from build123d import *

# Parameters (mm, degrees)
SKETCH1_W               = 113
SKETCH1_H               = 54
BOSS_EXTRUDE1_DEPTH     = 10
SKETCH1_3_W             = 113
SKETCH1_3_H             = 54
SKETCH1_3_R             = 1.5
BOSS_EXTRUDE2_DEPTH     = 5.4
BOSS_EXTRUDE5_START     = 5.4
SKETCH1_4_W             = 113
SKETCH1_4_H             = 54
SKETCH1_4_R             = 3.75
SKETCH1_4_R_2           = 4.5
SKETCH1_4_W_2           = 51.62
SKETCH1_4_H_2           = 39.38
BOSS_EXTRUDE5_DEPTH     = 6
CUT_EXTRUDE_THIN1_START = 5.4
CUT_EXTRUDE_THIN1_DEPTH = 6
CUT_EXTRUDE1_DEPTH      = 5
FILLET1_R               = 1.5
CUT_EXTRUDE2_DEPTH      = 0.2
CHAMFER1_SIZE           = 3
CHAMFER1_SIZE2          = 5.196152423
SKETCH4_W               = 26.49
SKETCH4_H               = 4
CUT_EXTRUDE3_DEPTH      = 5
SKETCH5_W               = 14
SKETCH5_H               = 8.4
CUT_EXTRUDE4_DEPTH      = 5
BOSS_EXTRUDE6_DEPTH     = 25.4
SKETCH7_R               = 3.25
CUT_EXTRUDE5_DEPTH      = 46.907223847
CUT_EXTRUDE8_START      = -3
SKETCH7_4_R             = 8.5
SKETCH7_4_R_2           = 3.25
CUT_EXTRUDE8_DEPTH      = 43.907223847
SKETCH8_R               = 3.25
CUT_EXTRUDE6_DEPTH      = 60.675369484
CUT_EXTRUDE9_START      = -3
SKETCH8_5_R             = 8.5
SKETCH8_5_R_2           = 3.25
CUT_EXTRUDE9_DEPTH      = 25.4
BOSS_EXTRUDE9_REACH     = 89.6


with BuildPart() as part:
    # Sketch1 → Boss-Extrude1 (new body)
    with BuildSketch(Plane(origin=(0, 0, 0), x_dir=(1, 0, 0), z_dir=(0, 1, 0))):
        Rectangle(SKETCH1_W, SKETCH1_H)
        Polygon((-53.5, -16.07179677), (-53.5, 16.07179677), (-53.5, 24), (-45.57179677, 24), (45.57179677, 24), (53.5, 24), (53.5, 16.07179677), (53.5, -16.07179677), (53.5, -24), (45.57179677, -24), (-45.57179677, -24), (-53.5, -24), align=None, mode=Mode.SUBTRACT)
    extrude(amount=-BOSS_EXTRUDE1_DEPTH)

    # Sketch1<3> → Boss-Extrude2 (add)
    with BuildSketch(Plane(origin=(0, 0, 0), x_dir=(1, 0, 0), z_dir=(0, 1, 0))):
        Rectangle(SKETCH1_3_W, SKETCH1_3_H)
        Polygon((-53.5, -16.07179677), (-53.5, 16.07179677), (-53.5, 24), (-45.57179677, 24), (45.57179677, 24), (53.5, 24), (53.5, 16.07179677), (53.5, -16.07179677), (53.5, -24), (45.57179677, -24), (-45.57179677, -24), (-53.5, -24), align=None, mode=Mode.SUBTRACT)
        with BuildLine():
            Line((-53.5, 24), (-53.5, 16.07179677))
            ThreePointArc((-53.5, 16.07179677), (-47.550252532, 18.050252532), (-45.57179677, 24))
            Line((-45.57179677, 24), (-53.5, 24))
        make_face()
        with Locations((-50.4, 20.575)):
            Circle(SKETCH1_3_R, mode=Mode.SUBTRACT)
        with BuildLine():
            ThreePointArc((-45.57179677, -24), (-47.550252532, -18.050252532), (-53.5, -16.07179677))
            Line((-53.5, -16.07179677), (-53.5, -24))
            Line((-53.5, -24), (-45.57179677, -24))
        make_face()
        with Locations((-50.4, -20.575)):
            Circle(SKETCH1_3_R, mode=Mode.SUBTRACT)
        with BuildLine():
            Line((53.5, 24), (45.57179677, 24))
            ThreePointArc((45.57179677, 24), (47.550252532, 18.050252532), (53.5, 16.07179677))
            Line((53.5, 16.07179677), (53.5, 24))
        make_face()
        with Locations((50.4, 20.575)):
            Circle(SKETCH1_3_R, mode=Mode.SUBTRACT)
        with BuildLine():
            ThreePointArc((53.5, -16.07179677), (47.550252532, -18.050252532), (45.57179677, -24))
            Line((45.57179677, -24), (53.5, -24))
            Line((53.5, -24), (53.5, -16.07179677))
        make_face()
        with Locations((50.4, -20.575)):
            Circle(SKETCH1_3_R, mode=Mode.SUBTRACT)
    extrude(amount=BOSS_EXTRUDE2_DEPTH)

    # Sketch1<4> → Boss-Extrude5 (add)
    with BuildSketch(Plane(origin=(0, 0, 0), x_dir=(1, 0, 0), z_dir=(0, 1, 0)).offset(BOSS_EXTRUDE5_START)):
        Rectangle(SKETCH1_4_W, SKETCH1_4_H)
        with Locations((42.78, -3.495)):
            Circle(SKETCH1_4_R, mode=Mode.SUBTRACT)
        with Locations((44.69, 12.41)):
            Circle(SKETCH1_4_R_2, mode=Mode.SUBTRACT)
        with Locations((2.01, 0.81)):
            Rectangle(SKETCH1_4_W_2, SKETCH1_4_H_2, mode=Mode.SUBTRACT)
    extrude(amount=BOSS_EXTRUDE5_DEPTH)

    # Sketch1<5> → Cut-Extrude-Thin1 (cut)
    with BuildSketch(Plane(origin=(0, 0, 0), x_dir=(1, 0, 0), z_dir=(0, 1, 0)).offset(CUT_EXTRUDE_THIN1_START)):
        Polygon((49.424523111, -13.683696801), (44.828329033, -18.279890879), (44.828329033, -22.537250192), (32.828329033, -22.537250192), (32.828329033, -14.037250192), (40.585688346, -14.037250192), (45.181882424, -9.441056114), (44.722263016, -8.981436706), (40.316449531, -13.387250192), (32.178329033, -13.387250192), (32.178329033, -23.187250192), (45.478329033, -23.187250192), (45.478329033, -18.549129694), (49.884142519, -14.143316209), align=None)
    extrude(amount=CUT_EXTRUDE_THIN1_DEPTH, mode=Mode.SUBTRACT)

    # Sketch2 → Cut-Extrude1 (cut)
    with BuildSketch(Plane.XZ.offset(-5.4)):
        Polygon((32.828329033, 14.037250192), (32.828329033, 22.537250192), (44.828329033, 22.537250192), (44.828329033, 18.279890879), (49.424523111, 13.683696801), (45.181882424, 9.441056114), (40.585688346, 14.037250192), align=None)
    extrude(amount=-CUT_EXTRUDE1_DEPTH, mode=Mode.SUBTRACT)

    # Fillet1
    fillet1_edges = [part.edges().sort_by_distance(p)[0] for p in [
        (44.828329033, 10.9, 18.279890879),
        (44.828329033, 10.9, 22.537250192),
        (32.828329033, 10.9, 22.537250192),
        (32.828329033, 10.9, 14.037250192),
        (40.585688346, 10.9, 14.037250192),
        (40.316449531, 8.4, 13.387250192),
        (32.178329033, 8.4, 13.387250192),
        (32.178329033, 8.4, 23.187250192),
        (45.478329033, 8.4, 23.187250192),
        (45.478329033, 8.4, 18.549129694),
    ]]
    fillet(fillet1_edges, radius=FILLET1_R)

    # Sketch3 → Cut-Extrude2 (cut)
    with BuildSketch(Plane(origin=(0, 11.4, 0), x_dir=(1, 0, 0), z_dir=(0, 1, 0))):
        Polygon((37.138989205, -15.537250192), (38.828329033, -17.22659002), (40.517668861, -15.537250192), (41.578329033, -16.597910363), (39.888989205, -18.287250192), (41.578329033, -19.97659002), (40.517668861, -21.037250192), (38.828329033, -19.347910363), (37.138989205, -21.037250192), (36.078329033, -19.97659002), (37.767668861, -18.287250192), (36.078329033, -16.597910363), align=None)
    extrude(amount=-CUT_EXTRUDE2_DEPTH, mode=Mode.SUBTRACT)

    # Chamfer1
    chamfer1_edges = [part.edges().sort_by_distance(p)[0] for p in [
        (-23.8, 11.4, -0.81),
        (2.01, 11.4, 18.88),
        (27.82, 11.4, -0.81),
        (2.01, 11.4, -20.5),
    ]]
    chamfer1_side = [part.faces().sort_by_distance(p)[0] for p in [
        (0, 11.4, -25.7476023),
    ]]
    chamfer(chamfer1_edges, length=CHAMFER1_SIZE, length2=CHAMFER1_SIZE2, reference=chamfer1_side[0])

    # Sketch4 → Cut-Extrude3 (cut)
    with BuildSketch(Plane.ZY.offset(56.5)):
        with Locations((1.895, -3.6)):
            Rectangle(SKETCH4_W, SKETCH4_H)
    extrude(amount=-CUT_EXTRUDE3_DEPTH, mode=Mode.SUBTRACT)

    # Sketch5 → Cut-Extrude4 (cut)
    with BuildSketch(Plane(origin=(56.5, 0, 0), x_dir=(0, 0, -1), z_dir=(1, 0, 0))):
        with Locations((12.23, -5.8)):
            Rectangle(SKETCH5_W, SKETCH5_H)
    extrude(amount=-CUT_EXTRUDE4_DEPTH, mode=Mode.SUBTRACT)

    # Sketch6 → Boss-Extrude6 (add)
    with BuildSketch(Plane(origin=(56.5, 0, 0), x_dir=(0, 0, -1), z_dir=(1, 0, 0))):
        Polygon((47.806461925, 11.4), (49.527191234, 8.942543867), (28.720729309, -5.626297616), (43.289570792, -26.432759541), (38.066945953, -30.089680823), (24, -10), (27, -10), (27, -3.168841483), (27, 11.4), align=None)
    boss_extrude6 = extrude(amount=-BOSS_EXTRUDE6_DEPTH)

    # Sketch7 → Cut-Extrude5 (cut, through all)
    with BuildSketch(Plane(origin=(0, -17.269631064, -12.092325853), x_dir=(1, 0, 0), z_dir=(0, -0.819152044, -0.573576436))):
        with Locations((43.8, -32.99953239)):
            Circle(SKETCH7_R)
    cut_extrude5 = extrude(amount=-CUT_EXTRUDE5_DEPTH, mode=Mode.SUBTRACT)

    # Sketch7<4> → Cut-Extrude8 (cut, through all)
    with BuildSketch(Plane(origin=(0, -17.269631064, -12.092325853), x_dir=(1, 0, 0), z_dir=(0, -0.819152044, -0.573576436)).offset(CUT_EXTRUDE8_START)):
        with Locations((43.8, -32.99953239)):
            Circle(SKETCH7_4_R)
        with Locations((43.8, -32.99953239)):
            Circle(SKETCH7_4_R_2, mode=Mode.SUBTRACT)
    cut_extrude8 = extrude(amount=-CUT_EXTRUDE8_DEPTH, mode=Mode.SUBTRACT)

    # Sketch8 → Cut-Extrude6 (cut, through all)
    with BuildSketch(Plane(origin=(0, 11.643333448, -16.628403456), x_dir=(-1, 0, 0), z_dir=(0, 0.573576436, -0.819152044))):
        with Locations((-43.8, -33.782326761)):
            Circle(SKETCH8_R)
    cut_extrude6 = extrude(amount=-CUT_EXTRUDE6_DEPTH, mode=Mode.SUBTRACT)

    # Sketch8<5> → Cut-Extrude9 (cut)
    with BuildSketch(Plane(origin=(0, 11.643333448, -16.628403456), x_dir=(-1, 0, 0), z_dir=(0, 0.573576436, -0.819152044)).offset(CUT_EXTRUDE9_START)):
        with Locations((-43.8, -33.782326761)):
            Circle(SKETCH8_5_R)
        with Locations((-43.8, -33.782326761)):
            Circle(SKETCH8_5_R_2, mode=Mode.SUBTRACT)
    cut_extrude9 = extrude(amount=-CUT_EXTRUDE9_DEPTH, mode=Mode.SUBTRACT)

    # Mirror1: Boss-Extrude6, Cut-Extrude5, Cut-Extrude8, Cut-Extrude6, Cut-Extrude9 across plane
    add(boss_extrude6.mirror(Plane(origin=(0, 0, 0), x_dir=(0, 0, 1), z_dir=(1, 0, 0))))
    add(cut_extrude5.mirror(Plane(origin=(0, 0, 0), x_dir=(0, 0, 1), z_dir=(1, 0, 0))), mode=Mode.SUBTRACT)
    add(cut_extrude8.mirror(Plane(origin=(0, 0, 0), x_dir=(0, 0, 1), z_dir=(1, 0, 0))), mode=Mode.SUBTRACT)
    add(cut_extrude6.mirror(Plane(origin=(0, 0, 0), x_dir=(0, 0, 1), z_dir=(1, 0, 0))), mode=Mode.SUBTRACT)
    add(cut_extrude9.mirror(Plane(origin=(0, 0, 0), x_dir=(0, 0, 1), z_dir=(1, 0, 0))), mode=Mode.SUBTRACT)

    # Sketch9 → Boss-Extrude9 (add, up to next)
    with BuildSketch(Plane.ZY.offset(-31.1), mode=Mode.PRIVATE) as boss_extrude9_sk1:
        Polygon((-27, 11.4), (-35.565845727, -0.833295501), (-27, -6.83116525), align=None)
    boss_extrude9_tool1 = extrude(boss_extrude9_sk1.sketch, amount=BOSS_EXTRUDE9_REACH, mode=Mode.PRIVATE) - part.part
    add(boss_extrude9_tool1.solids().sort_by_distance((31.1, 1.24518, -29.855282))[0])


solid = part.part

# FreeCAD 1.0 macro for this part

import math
import FreeCAD as App
import Part
import Sketcher
Q = App.Units.Quantity


def edges_at(feature, points):
    """Names of the edges that pass closest to the given points."""
    edges = feature.Shape.Edges
    near = lambda p: min(range(len(edges)), key=lambda i: edges[i].distToShape(Part.Vertex(*p))[0])
    return sorted({f"Edge{near(p) + 1}" for p in points})

doc = App.newDocument("Part")
body = doc.addObject("PartDesign::Body", "Body")

sketch1 = body.newObject("Sketcher::SketchObject", "Sketch")
sketch1.AttachmentSupport = (doc.getObject("XZ_Plane"), [""])
sketch1.MapMode = "FlatFace"
sketch1.addGeometry(Part.LineSegment(App.Vector(-56, -27, 0), App.Vector(-56, 27, 0)), False)
sketch1.addGeometry(Part.LineSegment(App.Vector(-56, 27, 0), App.Vector(56, 27, 0)), False)
sketch1.addGeometry(Part.LineSegment(App.Vector(56, 27, 0), App.Vector(56, -27, 0)), False)
sketch1.addGeometry(Part.LineSegment(App.Vector(56, -27, 0), App.Vector(-56, -27, 0)), False)
sketch1.addGeometry(Part.LineSegment(App.Vector(-54, 24, 0), App.Vector(-54, -24, 0)), False)
sketch1.addGeometry(Part.LineSegment(App.Vector(-54, -24, 0), App.Vector(54, -24, 0)), False)
sketch1.addGeometry(Part.LineSegment(App.Vector(54, -24, 0), App.Vector(54, 24, 0)), False)
sketch1.addGeometry(Part.LineSegment(App.Vector(54, 24, 0), App.Vector(-54, 24, 0)), False)
sketch1.addConstraint(Sketcher.Constraint("Coincident", 0, 2, 1, 1))
sketch1.addConstraint(Sketcher.Constraint("Coincident", 1, 2, 2, 1))
sketch1.addConstraint(Sketcher.Constraint("Coincident", 2, 2, 3, 1))
sketch1.addConstraint(Sketcher.Constraint("Coincident", 3, 2, 0, 1))
sketch1.addConstraint(Sketcher.Constraint("Coincident", 4, 2, 5, 1))
sketch1.addConstraint(Sketcher.Constraint("Coincident", 5, 2, 6, 1))
sketch1.addConstraint(Sketcher.Constraint("Coincident", 6, 2, 7, 1))
sketch1.addConstraint(Sketcher.Constraint("Coincident", 7, 2, 4, 1))
sketch1.addConstraint(Sketcher.Constraint("Vertical", 0))
sketch1.addConstraint(Sketcher.Constraint("Horizontal", 1))
sketch1.addConstraint(Sketcher.Constraint("Vertical", 2))
sketch1.addConstraint(Sketcher.Constraint("Horizontal", 3))
sketch1.addConstraint(Sketcher.Constraint("Vertical", 4))
sketch1.addConstraint(Sketcher.Constraint("Horizontal", 5))
sketch1.addConstraint(Sketcher.Constraint("Vertical", 6))
sketch1.addConstraint(Sketcher.Constraint("Horizontal", 7))
sketch1.addConstraint(Sketcher.Constraint("Symmetric", 0, 2, 2, 2, -1, 1))
sketch1.addConstraint(Sketcher.Constraint("Symmetric", 4, 2, 6, 2, -1, 1))
sketch1.addConstraint(Sketcher.Constraint("DistanceX", 1, 1, 1, 2, 113.0))
sketch1.addConstraint(Sketcher.Constraint("DistanceX", 5, 1, 5, 2, 107.0))
sketch1.addConstraint(Sketcher.Constraint("DistanceY", 0, 1, 0, 2, 54.0))
sketch1.addConstraint(Sketcher.Constraint("DistanceY", 4, 2, 4, 1, 48.0))
pad1 = body.newObject("PartDesign::Pad", "Pad")
pad1.Profile = sketch1
pad1.Length = 10

sketch2 = body.newObject("Sketcher::SketchObject", "Sketch001")
sketch2.AttachmentSupport = (doc.getObject("XZ_Plane"), [""])
sketch2.MapMode = "FlatFace"
sketch2.addGeometry(Part.LineSegment(App.Vector(-56.5, -27, 0), App.Vector(-56.5, 27, 0)), False)
sketch2.addGeometry(Part.LineSegment(App.Vector(-56.5, 27, 0), App.Vector(56.5, 27, 0)), False)
sketch2.addGeometry(Part.LineSegment(App.Vector(56.5, 27, 0), App.Vector(56.5, -27, 0)), False)
sketch2.addGeometry(Part.LineSegment(App.Vector(56.5, -27, 0), App.Vector(-56.5, -27, 0)), False)
sketch2.addGeometry(Part.Circle(App.Vector(-50.4, 20.6, 0), App.Vector(0, 0, 1), 1.5), False)
sketch2.addGeometry(Part.Circle(App.Vector(50.4, 20.6, 0), App.Vector(0, 0, 1), 1.5), False)
sketch2.addGeometry(Part.LineSegment(App.Vector(-53.5, 16.1, 0), App.Vector(-53.5, -16.1, 0)), False)
sketch2.addGeometry(Part.ArcOfCircle(Part.Circle(App.Vector(-52.5, -23, 0), App.Vector(0, 0, 1), 7), math.radians(-8), math.radians(98)), False)
sketch2.addGeometry(Part.LineSegment(App.Vector(-45.6, -24, 0), App.Vector(45.6, -24, 0)), False)
sketch2.addGeometry(Part.ArcOfCircle(Part.Circle(App.Vector(52.5, -23, 0), App.Vector(0, 0, 1), 7), math.radians(82), math.radians(188)), False)
sketch2.addGeometry(Part.LineSegment(App.Vector(53.5, -16.1, 0), App.Vector(53.5, 16.1, 0)), False)
sketch2.addGeometry(Part.ArcOfCircle(Part.Circle(App.Vector(52.5, 23, 0), App.Vector(0, 0, 1), 7), math.radians(172), math.radians(278)), False)
sketch2.addGeometry(Part.LineSegment(App.Vector(45.6, 24, 0), App.Vector(-45.6, 24, 0)), False)
sketch2.addGeometry(Part.ArcOfCircle(Part.Circle(App.Vector(-52.5, 23, 0), App.Vector(0, 0, 1), 7), math.radians(-98), math.radians(8)), False)
sketch2.addGeometry(Part.Circle(App.Vector(-50.4, -20.6, 0), App.Vector(0, 0, 1), 1.5), False)
sketch2.addGeometry(Part.Circle(App.Vector(50.4, -20.6, 0), App.Vector(0, 0, 1), 1.5), False)
sketch2.addConstraint(Sketcher.Constraint("Coincident", 0, 2, 1, 1))
sketch2.addConstraint(Sketcher.Constraint("Coincident", 1, 2, 2, 1))
sketch2.addConstraint(Sketcher.Constraint("Coincident", 2, 2, 3, 1))
sketch2.addConstraint(Sketcher.Constraint("Coincident", 3, 2, 0, 1))
sketch2.addConstraint(Sketcher.Constraint("Coincident", 6, 2, 7, 2))
sketch2.addConstraint(Sketcher.Constraint("Coincident", 7, 1, 8, 1))
sketch2.addConstraint(Sketcher.Constraint("Coincident", 8, 2, 9, 2))
sketch2.addConstraint(Sketcher.Constraint("Coincident", 9, 1, 10, 1))
sketch2.addConstraint(Sketcher.Constraint("Coincident", 10, 2, 11, 2))
sketch2.addConstraint(Sketcher.Constraint("Coincident", 11, 1, 12, 1))
sketch2.addConstraint(Sketcher.Constraint("Coincident", 12, 2, 13, 2))
sketch2.addConstraint(Sketcher.Constraint("Coincident", 13, 1, 6, 1))
sketch2.addConstraint(Sketcher.Constraint("Vertical", 0))
sketch2.addConstraint(Sketcher.Constraint("Horizontal", 1))
sketch2.addConstraint(Sketcher.Constraint("Vertical", 2))
sketch2.addConstraint(Sketcher.Constraint("Horizontal", 3))
sketch2.addConstraint(Sketcher.Constraint("Vertical", 6))
sketch2.addConstraint(Sketcher.Constraint("Horizontal", 8))
sketch2.addConstraint(Sketcher.Constraint("Vertical", 10))
sketch2.addConstraint(Sketcher.Constraint("Horizontal", 12))
sketch2.addConstraint(Sketcher.Constraint("Equal", 4, 5))
sketch2.addConstraint(Sketcher.Constraint("Equal", 7, 9))
sketch2.addConstraint(Sketcher.Constraint("Equal", 9, 11))
sketch2.addConstraint(Sketcher.Constraint("Equal", 11, 13))
sketch2.addConstraint(Sketcher.Constraint("Equal", 5, 14))
sketch2.addConstraint(Sketcher.Constraint("Equal", 14, 15))
sketch2.addConstraint(Sketcher.Constraint("Symmetric", 7, 3, 11, 3, -1, 1))
sketch2.addConstraint(Sketcher.Constraint("Symmetric", 9, 3, 13, 3, -1, 1))
sketch2.addConstraint(Sketcher.Constraint("Symmetric", 5, 3, 14, 3, -1, 1))
sketch2.addConstraint(Sketcher.Constraint("Symmetric", 4, 3, 15, 3, -1, 1))
sketch2.addConstraint(Sketcher.Constraint("Symmetric", 0, 2, 2, 2, -1, 1))
sketch2.addConstraint(Sketcher.Constraint("Symmetric", 4, 3, 5, 3, -2))
sketch2.addConstraint(Sketcher.Constraint("Symmetric", 7, 3, 9, 3, -2))
sketch2.addConstraint(Sketcher.Constraint("Horizontal", 6, 2, 9, 1))
sketch2.addConstraint(Sketcher.Constraint("Vertical", 8, 2, 11, 1))
sketch2.addConstraint(Sketcher.Constraint("Diameter", 4, 3.0))
sketch2.addConstraint(Sketcher.Constraint("Radius", 7, 7.0))
sketch2.addConstraint(Sketcher.Constraint("DistanceX", 1, 1, 1, 2, 113.0))
sketch2.addConstraint(Sketcher.Constraint("DistanceY", 0, 1, 0, 2, 54.0))
sketch2.addConstraint(Sketcher.Constraint("DistanceY", 7, 3, -1, 1, 23.0))
sketch2.addConstraint(Sketcher.Constraint("DistanceY", 7, 1, -1, 1, 24.0))
sketch2.addConstraint(Sketcher.Constraint("DistanceX", 7, 3, 9, 3, 105.0))
sketch2.addConstraint(Sketcher.Constraint("DistanceX", 6, 2, 7, 3, 1.0))
sketch2.addConstraint(Sketcher.Constraint("DistanceX", 4, 3, -1, 1, 50.4))
sketch2.addConstraint(Sketcher.Constraint("DistanceY", 14, 3, 4, 3, 41.15))
pad2 = body.newObject("PartDesign::Pad", "Pad001")
pad2.Profile = sketch2
pad2.Length = 5.4
pad2.Reversed = True

sketch3 = body.newObject("Sketcher::SketchObject", "Sketch002")
sketch3.AttachmentSupport = (doc.getObject("XZ_Plane"), [""])
sketch3.MapMode = "FlatFace"
sketch3.AttachmentOffset = App.Placement(App.Vector(0, 0, -5.4), App.Rotation())
sketch3.addGeometry(Part.LineSegment(App.Vector(-56.5, -27, 0), App.Vector(-56.5, 27, 0)), False)
sketch3.addGeometry(Part.LineSegment(App.Vector(-56.5, 27, 0), App.Vector(56.5, 27, 0)), False)
sketch3.addGeometry(Part.LineSegment(App.Vector(56.5, 27, 0), App.Vector(56.5, -27, 0)), False)
sketch3.addGeometry(Part.LineSegment(App.Vector(56.5, -27, 0), App.Vector(-56.5, -27, 0)), False)
sketch3.addGeometry(Part.Circle(App.Vector(42.8, 3.5, 0), App.Vector(0, 0, 1), 3.8), False)
sketch3.addGeometry(Part.LineSegment(App.Vector(27.8, 18.9, 0), App.Vector(-23.8, 18.9, 0)), False)
sketch3.addGeometry(Part.LineSegment(App.Vector(-23.8, 18.9, 0), App.Vector(-23.8, -20.5, 0)), False)
sketch3.addGeometry(Part.LineSegment(App.Vector(-23.8, -20.5, 0), App.Vector(27.8, -20.5, 0)), False)
sketch3.addGeometry(Part.LineSegment(App.Vector(27.8, -20.5, 0), App.Vector(27.8, 18.9, 0)), False)
sketch3.addGeometry(Part.Circle(App.Vector(44.7, -12.4, 0), App.Vector(0, 0, 1), 4.5), False)
sketch3.addConstraint(Sketcher.Constraint("Coincident", 0, 2, 1, 1))
sketch3.addConstraint(Sketcher.Constraint("Coincident", 1, 2, 2, 1))
sketch3.addConstraint(Sketcher.Constraint("Coincident", 2, 2, 3, 1))
sketch3.addConstraint(Sketcher.Constraint("Coincident", 3, 2, 0, 1))
sketch3.addConstraint(Sketcher.Constraint("Coincident", 5, 2, 6, 1))
sketch3.addConstraint(Sketcher.Constraint("Coincident", 6, 2, 7, 1))
sketch3.addConstraint(Sketcher.Constraint("Coincident", 7, 2, 8, 1))
sketch3.addConstraint(Sketcher.Constraint("Coincident", 8, 2, 5, 1))
sketch3.addConstraint(Sketcher.Constraint("Vertical", 0))
sketch3.addConstraint(Sketcher.Constraint("Horizontal", 1))
sketch3.addConstraint(Sketcher.Constraint("Vertical", 2))
sketch3.addConstraint(Sketcher.Constraint("Horizontal", 3))
sketch3.addConstraint(Sketcher.Constraint("Horizontal", 5))
sketch3.addConstraint(Sketcher.Constraint("Vertical", 6))
sketch3.addConstraint(Sketcher.Constraint("Horizontal", 7))
sketch3.addConstraint(Sketcher.Constraint("Vertical", 8))
sketch3.addConstraint(Sketcher.Constraint("Symmetric", 0, 2, 2, 2, -1, 1))
sketch3.addConstraint(Sketcher.Constraint("Diameter", 9, 9.0))
sketch3.addConstraint(Sketcher.Constraint("Diameter", 4, 7.5))
sketch3.addConstraint(Sketcher.Constraint("DistanceX", 1, 1, 1, 2, 113.0))
sketch3.addConstraint(Sketcher.Constraint("DistanceY", 0, 1, 0, 2, 54.0))
sketch3.addConstraint(Sketcher.Constraint("DistanceX", 5, 2, 5, 1, 51.62))
sketch3.addConstraint(Sketcher.Constraint("DistanceY", 6, 2, 6, 1, 39.38))
sketch3.addConstraint(Sketcher.Constraint("DistanceX", 5, 2, -1, 1, 23.8))
sketch3.addConstraint(Sketcher.Constraint("DistanceY", 6, 2, -1, 1, 20.5))
sketch3.addConstraint(Sketcher.Constraint("DistanceX", -1, 1, 4, 3, 42.78))
sketch3.addConstraint(Sketcher.Constraint("DistanceX", -1, 1, 9, 3, 44.69))
sketch3.addConstraint(Sketcher.Constraint("DistanceY", 9, 3, -1, 1, 12.41))
sketch3.addConstraint(Sketcher.Constraint("DistanceY", -1, 1, 4, 3, 3.495))
pad3 = body.newObject("PartDesign::Pad", "Pad002")
pad3.Profile = sketch3
pad3.Length = 6
pad3.Reversed = True

sketch4 = body.newObject("Sketcher::SketchObject", "Sketch003")
sketch4.AttachmentSupport = (doc.getObject("XZ_Plane"), [""])
sketch4.MapMode = "FlatFace"
sketch4.AttachmentOffset = App.Placement(App.Vector(0, 0, -5.4), App.Rotation())
sketch4.addGeometry(Part.LineSegment(App.Vector(49.4, 13.7, 0), App.Vector(44.8, 18.3, 0)), False)
sketch4.addGeometry(Part.LineSegment(App.Vector(44.8, 18.3, 0), App.Vector(44.8, 22.5, 0)), False)
sketch4.addGeometry(Part.LineSegment(App.Vector(44.8, 22.5, 0), App.Vector(32.8, 22.5, 0)), False)
sketch4.addGeometry(Part.LineSegment(App.Vector(32.8, 22.5, 0), App.Vector(32.8, 14, 0)), False)
sketch4.addGeometry(Part.LineSegment(App.Vector(32.8, 14, 0), App.Vector(40.6, 14, 0)), False)
sketch4.addGeometry(Part.LineSegment(App.Vector(40.6, 14, 0), App.Vector(45.2, 9.4, 0)), False)
sketch4.addGeometry(Part.LineSegment(App.Vector(45.2, 9.4, 0), App.Vector(44.7, 9, 0)), False)
sketch4.addGeometry(Part.LineSegment(App.Vector(44.7, 9, 0), App.Vector(40.3, 13.4, 0)), False)
sketch4.addGeometry(Part.LineSegment(App.Vector(40.3, 13.4, 0), App.Vector(32.2, 13.4, 0)), False)
sketch4.addGeometry(Part.LineSegment(App.Vector(32.2, 13.4, 0), App.Vector(32.2, 23.2, 0)), False)
sketch4.addGeometry(Part.LineSegment(App.Vector(32.2, 23.2, 0), App.Vector(45.5, 23.2, 0)), False)
sketch4.addGeometry(Part.LineSegment(App.Vector(45.5, 23.2, 0), App.Vector(45.5, 18.5, 0)), False)
sketch4.addGeometry(Part.LineSegment(App.Vector(45.5, 18.5, 0), App.Vector(49.9, 14.1, 0)), False)
sketch4.addGeometry(Part.LineSegment(App.Vector(49.9, 14.1, 0), App.Vector(49.4, 13.7, 0)), False)
sketch4.addConstraint(Sketcher.Constraint("Coincident", 0, 2, 1, 1))
sketch4.addConstraint(Sketcher.Constraint("Coincident", 1, 2, 2, 1))
sketch4.addConstraint(Sketcher.Constraint("Coincident", 2, 2, 3, 1))
sketch4.addConstraint(Sketcher.Constraint("Coincident", 3, 2, 4, 1))
sketch4.addConstraint(Sketcher.Constraint("Coincident", 4, 2, 5, 1))
sketch4.addConstraint(Sketcher.Constraint("Coincident", 5, 2, 6, 1))
sketch4.addConstraint(Sketcher.Constraint("Coincident", 6, 2, 7, 1))
sketch4.addConstraint(Sketcher.Constraint("Coincident", 7, 2, 8, 1))
sketch4.addConstraint(Sketcher.Constraint("Coincident", 8, 2, 9, 1))
sketch4.addConstraint(Sketcher.Constraint("Coincident", 9, 2, 10, 1))
sketch4.addConstraint(Sketcher.Constraint("Coincident", 10, 2, 11, 1))
sketch4.addConstraint(Sketcher.Constraint("Coincident", 11, 2, 12, 1))
sketch4.addConstraint(Sketcher.Constraint("Coincident", 12, 2, 13, 1))
sketch4.addConstraint(Sketcher.Constraint("Coincident", 13, 2, 0, 1))
sketch4.addConstraint(Sketcher.Constraint("Vertical", 1))
sketch4.addConstraint(Sketcher.Constraint("Horizontal", 2))
sketch4.addConstraint(Sketcher.Constraint("Vertical", 3))
sketch4.addConstraint(Sketcher.Constraint("Horizontal", 4))
sketch4.addConstraint(Sketcher.Constraint("Horizontal", 8))
sketch4.addConstraint(Sketcher.Constraint("Vertical", 9))
sketch4.addConstraint(Sketcher.Constraint("Horizontal", 10))
sketch4.addConstraint(Sketcher.Constraint("Vertical", 11))
sketch4.addConstraint(Sketcher.Constraint("Parallel", 0, 5))
sketch4.addConstraint(Sketcher.Constraint("Perpendicular", 5, 6))
sketch4.addConstraint(Sketcher.Constraint("Perpendicular", 6, 7))
sketch4.addConstraint(Sketcher.Constraint("Parallel", 7, 12))
sketch4.addConstraint(Sketcher.Constraint("Perpendicular", 12, 13))
sketch4.addConstraint(Sketcher.Constraint("Equal", 0, 5))
sketch4.addConstraint(Sketcher.Constraint("Equal", 7, 12))
sketch4.addConstraint(Sketcher.Constraint("Equal", 6, 13))
sketch4.addConstraint(Sketcher.Constraint("DistanceX", 2, 2, 2, 1, 12.0))
sketch4.addConstraint(Sketcher.Constraint("Angle", 0, Q("135 deg")))
sketch4.addConstraint(Sketcher.Constraint("DistanceX", 10, 1, 10, 2, 13.3))
sketch4.addConstraint(Sketcher.Constraint("DistanceY", 3, 2, 3, 1, 8.5))
sketch4.addConstraint(Sketcher.Constraint("DistanceY", 9, 1, 9, 2, 9.8))
sketch4.addConstraint(Sketcher.Constraint("Distance", 0, 6.5))
sketch4.addConstraint(Sketcher.Constraint("Distance", 6, 0.65))
sketch4.addConstraint(Sketcher.Constraint("DistanceY", 7, 2, 4, 2, 0.65))
sketch4.addConstraint(Sketcher.Constraint("DistanceX", 4, 1, 4, 2, 7.757359))
sketch4.addConstraint(Sketcher.Constraint("DistanceY", 1, 1, 1, 2, 4.257359))
sketch4.addConstraint(Sketcher.Constraint("DistanceX", -1, 1, 0, 2, 44.828329))
sketch4.addConstraint(Sketcher.Constraint("DistanceY", -1, 1, 0, 2, 18.279891))
pocket1 = body.newObject("PartDesign::Pocket", "Pocket")
pocket1.Profile = sketch4
pocket1.Length = 6

sketch5 = body.newObject("Sketcher::SketchObject", "Sketch004")
sketch5.AttachmentSupport = (doc.getObject("XZ_Plane"), [""])
sketch5.MapMode = "FlatFace"
sketch5.AttachmentOffset = App.Placement(App.Vector(0, 0, -5.4), App.Rotation())
sketch5.addGeometry(Part.LineSegment(App.Vector(32.8, 22.5, 0), App.Vector(32.8, 14, 0)), False)
sketch5.addGeometry(Part.LineSegment(App.Vector(32.8, 14, 0), App.Vector(40.6, 14, 0)), False)
sketch5.addGeometry(Part.LineSegment(App.Vector(40.6, 14, 0), App.Vector(45.2, 9.4, 0)), False)
sketch5.addGeometry(Part.LineSegment(App.Vector(45.2, 9.4, 0), App.Vector(49.4, 13.7, 0)), False)
sketch5.addGeometry(Part.LineSegment(App.Vector(49.4, 13.7, 0), App.Vector(44.8, 18.3, 0)), False)
sketch5.addGeometry(Part.LineSegment(App.Vector(44.8, 18.3, 0), App.Vector(44.8, 22.5, 0)), False)
sketch5.addGeometry(Part.LineSegment(App.Vector(44.8, 22.5, 0), App.Vector(32.8, 22.5, 0)), False)
sketch5.addConstraint(Sketcher.Constraint("Coincident", 0, 2, 1, 1))
sketch5.addConstraint(Sketcher.Constraint("Coincident", 1, 2, 2, 1))
sketch5.addConstraint(Sketcher.Constraint("Coincident", 2, 2, 3, 1))
sketch5.addConstraint(Sketcher.Constraint("Coincident", 3, 2, 4, 1))
sketch5.addConstraint(Sketcher.Constraint("Coincident", 4, 2, 5, 1))
sketch5.addConstraint(Sketcher.Constraint("Coincident", 5, 2, 6, 1))
sketch5.addConstraint(Sketcher.Constraint("Coincident", 6, 2, 0, 1))
sketch5.addConstraint(Sketcher.Constraint("Vertical", 0))
sketch5.addConstraint(Sketcher.Constraint("Horizontal", 1))
sketch5.addConstraint(Sketcher.Constraint("Vertical", 5))
sketch5.addConstraint(Sketcher.Constraint("Horizontal", 6))
sketch5.addConstraint(Sketcher.Constraint("Perpendicular", 2, 3))
sketch5.addConstraint(Sketcher.Constraint("Perpendicular", 3, 4))
sketch5.addConstraint(Sketcher.Constraint("Equal", 2, 4))
sketch5.addConstraint(Sketcher.Constraint("DistanceX", 6, 2, 6, 1, 12.0))
sketch5.addConstraint(Sketcher.Constraint("Angle", 2, Q("-45 deg")))
sketch5.addConstraint(Sketcher.Constraint("Distance", 3, 6.0))
sketch5.addConstraint(Sketcher.Constraint("DistanceY", 0, 2, 0, 1, 8.5))
sketch5.addConstraint(Sketcher.Constraint("Distance", 2, 6.5))
sketch5.addConstraint(Sketcher.Constraint("DistanceX", -1, 1, 0, 2, 32.828329))
sketch5.addConstraint(Sketcher.Constraint("DistanceY", -1, 1, 0, 2, 14.03725))
pocket2 = body.newObject("PartDesign::Pocket", "Pocket001")
pocket2.Profile = sketch5
pocket2.Length = 5
doc.recompute()

fillet = body.newObject("PartDesign::Fillet", "Fillet")
fillet.Base = (pocket2, edges_at(pocket2, [
    (44.828, 10.9, 18.28),
    (44.828, 10.9, 22.537),
    (32.828, 10.9, 22.537),
    (32.828, 10.9, 14.037),
    (40.586, 10.9, 14.037),
    (40.316, 8.4, 13.387),
    (32.178, 8.4, 13.387),
    (32.178, 8.4, 23.187),
    (45.478, 8.4, 23.187),
    (45.478, 8.4, 18.549),
]))
fillet.Radius = 1.5

sketch6 = body.newObject("Sketcher::SketchObject", "Sketch005")
sketch6.AttachmentSupport = (doc.getObject("XZ_Plane"), [""])
sketch6.MapMode = "FlatFace"
sketch6.AttachmentOffset = App.Placement(App.Vector(0, 0, -11.4), App.Rotation())
sketch6.addGeometry(Part.LineSegment(App.Vector(38.8, 17.2, 0), App.Vector(37.1, 15.5, 0)), False)
sketch6.addGeometry(Part.LineSegment(App.Vector(37.1, 15.5, 0), App.Vector(36.1, 16.6, 0)), False)
sketch6.addGeometry(Part.LineSegment(App.Vector(36.1, 16.6, 0), App.Vector(37.8, 18.3, 0)), False)
sketch6.addGeometry(Part.LineSegment(App.Vector(37.8, 18.3, 0), App.Vector(36.1, 20, 0)), False)
sketch6.addGeometry(Part.LineSegment(App.Vector(36.1, 20, 0), App.Vector(37.1, 21, 0)), False)
sketch6.addGeometry(Part.LineSegment(App.Vector(37.1, 21, 0), App.Vector(38.8, 19.3, 0)), False)
sketch6.addGeometry(Part.LineSegment(App.Vector(38.8, 19.3, 0), App.Vector(40.5, 21, 0)), False)
sketch6.addGeometry(Part.LineSegment(App.Vector(40.5, 21, 0), App.Vector(41.6, 20, 0)), False)
sketch6.addGeometry(Part.LineSegment(App.Vector(41.6, 20, 0), App.Vector(39.9, 18.3, 0)), False)
sketch6.addGeometry(Part.LineSegment(App.Vector(39.9, 18.3, 0), App.Vector(41.6, 16.6, 0)), False)
sketch6.addGeometry(Part.LineSegment(App.Vector(41.6, 16.6, 0), App.Vector(40.5, 15.5, 0)), False)
sketch6.addGeometry(Part.LineSegment(App.Vector(40.5, 15.5, 0), App.Vector(38.8, 17.2, 0)), False)
sketch6.addConstraint(Sketcher.Constraint("Coincident", 0, 2, 1, 1))
sketch6.addConstraint(Sketcher.Constraint("Coincident", 1, 2, 2, 1))
sketch6.addConstraint(Sketcher.Constraint("Coincident", 2, 2, 3, 1))
sketch6.addConstraint(Sketcher.Constraint("Coincident", 3, 2, 4, 1))
sketch6.addConstraint(Sketcher.Constraint("Coincident", 4, 2, 5, 1))
sketch6.addConstraint(Sketcher.Constraint("Coincident", 5, 2, 6, 1))
sketch6.addConstraint(Sketcher.Constraint("Coincident", 6, 2, 7, 1))
sketch6.addConstraint(Sketcher.Constraint("Coincident", 7, 2, 8, 1))
sketch6.addConstraint(Sketcher.Constraint("Coincident", 8, 2, 9, 1))
sketch6.addConstraint(Sketcher.Constraint("Coincident", 9, 2, 10, 1))
sketch6.addConstraint(Sketcher.Constraint("Coincident", 10, 2, 11, 1))
sketch6.addConstraint(Sketcher.Constraint("Coincident", 11, 2, 0, 1))
sketch6.addConstraint(Sketcher.Constraint("Perpendicular", 0, 1))
sketch6.addConstraint(Sketcher.Constraint("Perpendicular", 1, 2))
sketch6.addConstraint(Sketcher.Constraint("Perpendicular", 2, 3))
sketch6.addConstraint(Sketcher.Constraint("Perpendicular", 3, 4))
sketch6.addConstraint(Sketcher.Constraint("Perpendicular", 4, 5))
sketch6.addConstraint(Sketcher.Constraint("Perpendicular", 5, 6))
sketch6.addConstraint(Sketcher.Constraint("Perpendicular", 6, 7))
sketch6.addConstraint(Sketcher.Constraint("Perpendicular", 7, 8))
sketch6.addConstraint(Sketcher.Constraint("Perpendicular", 8, 9))
sketch6.addConstraint(Sketcher.Constraint("Perpendicular", 9, 10))
sketch6.addConstraint(Sketcher.Constraint("Perpendicular", 10, 11))
sketch6.addConstraint(Sketcher.Constraint("Horizontal", 4, 2, 6, 2))
sketch6.addConstraint(Sketcher.Constraint("Horizontal", 3, 2, 7, 2))
sketch6.addConstraint(Sketcher.Constraint("Horizontal", 2, 2, 8, 2))
sketch6.addConstraint(Sketcher.Constraint("Horizontal", 1, 2, 9, 2))
sketch6.addConstraint(Sketcher.Constraint("Horizontal", 0, 2, 10, 2))
sketch6.addConstraint(Sketcher.Constraint("Vertical", 1, 2, 3, 2))
sketch6.addConstraint(Sketcher.Constraint("Vertical", 0, 2, 4, 2))
sketch6.addConstraint(Sketcher.Constraint("Vertical", 7, 2, 9, 2))
sketch6.addConstraint(Sketcher.Constraint("Equal", 0, 2))
sketch6.addConstraint(Sketcher.Constraint("Distance", 1, 1.5))
sketch6.addConstraint(Sketcher.Constraint("DistanceY", 0, 2, 4, 2, 5.5))
sketch6.addConstraint(Sketcher.Constraint("DistanceX", -1, 1, 0, 2, 37.138989))
sketch6.addConstraint(Sketcher.Constraint("DistanceY", -1, 1, 0, 2, 15.53725))
pocket3 = body.newObject("PartDesign::Pocket", "Pocket002")
pocket3.Profile = sketch6
pocket3.Length = 0.2
pocket3.Reversed = True
doc.recompute()

chamfer = body.newObject("PartDesign::Chamfer", "Chamfer")
chamfer.Base = (pocket3, edges_at(pocket3, [
    (-23.8, 11.4, -0.81),
    (2.01, 11.4, 18.88),
    (27.82, 11.4, -0.81),
    (2.01, 11.4, -20.5),
]))
chamfer.ChamferType = "Two distances"
chamfer.Size = 3
chamfer.Size2 = 5.196152

sketch7 = body.newObject("Sketcher::SketchObject", "Sketch006")
sketch7.AttachmentSupport = (doc.getObject("YZ_Plane"), [""])
sketch7.MapMode = "FlatFace"
sketch7.AttachmentOffset = App.Placement(App.Vector(0, 0, -56.5), App.Rotation())
sketch7.addGeometry(Part.LineSegment(App.Vector(-1.6, -11.3, 0), App.Vector(-5.6, -11.3, 0)), False)
sketch7.addGeometry(Part.LineSegment(App.Vector(-5.6, -11.3, 0), App.Vector(-5.6, 15.1, 0)), False)
sketch7.addGeometry(Part.LineSegment(App.Vector(-5.6, 15.1, 0), App.Vector(-1.6, 15.1, 0)), False)
sketch7.addGeometry(Part.LineSegment(App.Vector(-1.6, 15.1, 0), App.Vector(-1.6, -11.3, 0)), False)
sketch7.addConstraint(Sketcher.Constraint("Coincident", 0, 2, 1, 1))
sketch7.addConstraint(Sketcher.Constraint("Coincident", 1, 2, 2, 1))
sketch7.addConstraint(Sketcher.Constraint("Coincident", 2, 2, 3, 1))
sketch7.addConstraint(Sketcher.Constraint("Coincident", 3, 2, 0, 1))
sketch7.addConstraint(Sketcher.Constraint("Horizontal", 0))
sketch7.addConstraint(Sketcher.Constraint("Vertical", 1))
sketch7.addConstraint(Sketcher.Constraint("Horizontal", 2))
sketch7.addConstraint(Sketcher.Constraint("Vertical", 3))
sketch7.addConstraint(Sketcher.Constraint("DistanceX", 0, 2, 0, 1, 4.0))
sketch7.addConstraint(Sketcher.Constraint("DistanceY", 1, 1, 1, 2, 26.49))
sketch7.addConstraint(Sketcher.Constraint("DistanceX", 0, 2, -1, 1, 5.6))
sketch7.addConstraint(Sketcher.Constraint("DistanceY", 0, 2, -1, 1, 11.35))
pocket4 = body.newObject("PartDesign::Pocket", "Pocket003")
pocket4.Profile = sketch7
pocket4.Length = 5
pocket4.Reversed = True

sketch8 = body.newObject("Sketcher::SketchObject", "Sketch007")
sketch8.AttachmentSupport = (doc.getObject("YZ_Plane"), [""])
sketch8.MapMode = "FlatFace"
sketch8.AttachmentOffset = App.Placement(App.Vector(0, 0, 56.5), App.Rotation())
sketch8.addGeometry(Part.LineSegment(App.Vector(-2, -5, 0), App.Vector(-10, -5, 0)), False)
sketch8.addGeometry(Part.LineSegment(App.Vector(-10, -5, 0), App.Vector(-10, -19, 0)), False)
sketch8.addGeometry(Part.LineSegment(App.Vector(-10, -19, 0), App.Vector(-2, -19, 0)), False)
sketch8.addGeometry(Part.LineSegment(App.Vector(-2, -19, 0), App.Vector(-2, -5, 0)), False)
sketch8.addConstraint(Sketcher.Constraint("Coincident", 0, 2, 1, 1))
sketch8.addConstraint(Sketcher.Constraint("Coincident", 1, 2, 2, 1))
sketch8.addConstraint(Sketcher.Constraint("Coincident", 2, 2, 3, 1))
sketch8.addConstraint(Sketcher.Constraint("Coincident", 3, 2, 0, 1))
sketch8.addConstraint(Sketcher.Constraint("Horizontal", 0))
sketch8.addConstraint(Sketcher.Constraint("Vertical", 1))
sketch8.addConstraint(Sketcher.Constraint("Horizontal", 2))
sketch8.addConstraint(Sketcher.Constraint("Vertical", 3))
sketch8.addConstraint(Sketcher.Constraint("DistanceY", 1, 2, 1, 1, 14.0))
sketch8.addConstraint(Sketcher.Constraint("DistanceX", 0, 2, 0, 1, 8.4))
sketch8.addConstraint(Sketcher.Constraint("DistanceX", 0, 2, -1, 1, 10.0))
sketch8.addConstraint(Sketcher.Constraint("DistanceY", 0, 2, -1, 1, 5.23))
pocket5 = body.newObject("PartDesign::Pocket", "Pocket004")
pocket5.Profile = sketch8
pocket5.Length = 5

sketch9 = body.newObject("Sketcher::SketchObject", "Sketch008")
sketch9.AttachmentSupport = (doc.getObject("YZ_Plane"), [""])
sketch9.MapMode = "FlatFace"
sketch9.AttachmentOffset = App.Placement(App.Vector(0, 0, 56.5), App.Rotation())
sketch9.addGeometry(Part.LineSegment(App.Vector(8.9, -49.5, 0), App.Vector(11.4, -47.8, 0)), False)
sketch9.addGeometry(Part.LineSegment(App.Vector(11.4, -47.8, 0), App.Vector(11.4, -27, 0)), False)
sketch9.addGeometry(Part.LineSegment(App.Vector(11.4, -27, 0), App.Vector(-10, -27, 0)), False)
sketch9.addGeometry(Part.LineSegment(App.Vector(-10, -27, 0), App.Vector(-10, -24, 0)), False)
sketch9.addGeometry(Part.LineSegment(App.Vector(-10, -24, 0), App.Vector(-30.1, -38.1, 0)), False)
sketch9.addGeometry(Part.LineSegment(App.Vector(-30.1, -38.1, 0), App.Vector(-26.4, -43.3, 0)), False)
sketch9.addGeometry(Part.LineSegment(App.Vector(-26.4, -43.3, 0), App.Vector(-5.6, -28.7, 0)), False)
sketch9.addGeometry(Part.LineSegment(App.Vector(-5.6, -28.7, 0), App.Vector(8.9, -49.5, 0)), False)
sketch9.addConstraint(Sketcher.Constraint("Coincident", 0, 2, 1, 1))
sketch9.addConstraint(Sketcher.Constraint("Coincident", 1, 2, 2, 1))
sketch9.addConstraint(Sketcher.Constraint("Coincident", 2, 2, 3, 1))
sketch9.addConstraint(Sketcher.Constraint("Coincident", 3, 2, 4, 1))
sketch9.addConstraint(Sketcher.Constraint("Coincident", 4, 2, 5, 1))
sketch9.addConstraint(Sketcher.Constraint("Coincident", 5, 2, 6, 1))
sketch9.addConstraint(Sketcher.Constraint("Coincident", 6, 2, 7, 1))
sketch9.addConstraint(Sketcher.Constraint("Coincident", 7, 2, 0, 1))
sketch9.addConstraint(Sketcher.Constraint("Vertical", 1))
sketch9.addConstraint(Sketcher.Constraint("Horizontal", 2))
sketch9.addConstraint(Sketcher.Constraint("Vertical", 3))
sketch9.addConstraint(Sketcher.Constraint("Parallel", 0, 4))
sketch9.addConstraint(Sketcher.Constraint("Perpendicular", 4, 5))
sketch9.addConstraint(Sketcher.Constraint("Perpendicular", 5, 6))
sketch9.addConstraint(Sketcher.Constraint("Perpendicular", 6, 7))
sketch9.addConstraint(Sketcher.Constraint("Equal", 6, 7))
sketch9.addConstraint(Sketcher.Constraint("DistanceY", 3, 1, 3, 2, 3.0))
sketch9.addConstraint(Sketcher.Constraint("Angle", 0, Q("35 deg")))
sketch9.addConstraint(Sketcher.Constraint("Distance", 0, 3.0))
sketch9.addConstraint(Sketcher.Constraint("DistanceX", 2, 2, 2, 1, 21.4))
sketch9.addConstraint(Sketcher.Constraint("DistanceY", 1, 2, -1, 1, 27.0))
sketch9.addConstraint(Sketcher.Constraint("DistanceX", 2, 2, -1, 1, 10.0))
sketch9.addConstraint(Sketcher.Constraint("Distance", 6, 25.4))
sketch9.addConstraint(Sketcher.Constraint("DistanceY", 1, 1, 1, 2, 20.806462))
pad4 = body.newObject("PartDesign::Pad", "Pad003")
pad4.Profile = sketch9
pad4.Length = 25.4
pad4.Reversed = True

sketch10 = body.newObject("Sketcher::SketchObject", "Sketch009")
sketch10.Placement = App.Placement(App.Vector(0, -17.269631, -12.092326), App.Rotation(App.Vector(1, 0, 0), App.Vector(0, -0.573576436, 0.819152044), App.Vector(0, -0.819152044, -0.573576436), "ZXY"))
sketch10.addGeometry(Part.Circle(App.Vector(43.8, -33, 0), App.Vector(0, 0, 1), 3.2), False)
sketch10.addConstraint(Sketcher.Constraint("Diameter", 0, 6.5))
sketch10.addConstraint(Sketcher.Constraint("DistanceX", -1, 1, 0, 3, 43.8))
sketch10.addConstraint(Sketcher.Constraint("DistanceY", 0, 3, -1, 1, 32.999532))
pocket6 = body.newObject("PartDesign::Pocket", "Pocket005")
pocket6.Profile = sketch10
pocket6.Type = "ThroughAll"

sketch11 = body.newObject("Sketcher::SketchObject", "Sketch010")
sketch11.Placement = App.Placement(App.Vector(0, -14.812175, -10.371597), App.Rotation(App.Vector(1, 0, 0), App.Vector(0, -0.573576436, 0.819152044), App.Vector(0, -0.819152044, -0.573576436), "ZXY"))
sketch11.addGeometry(Part.Circle(App.Vector(43.8, -33, 0), App.Vector(0, 0, 1), 8.5), False)
sketch11.addGeometry(Part.Circle(App.Vector(43.8, -33, 0), App.Vector(0, 0, 1), 3.2), False)
sketch11.addConstraint(Sketcher.Constraint("Coincident", 1, 3, 0, 3))
sketch11.addConstraint(Sketcher.Constraint("Diameter", 0, 17.0))
sketch11.addConstraint(Sketcher.Constraint("Diameter", 1, 6.5))
sketch11.addConstraint(Sketcher.Constraint("DistanceX", -1, 1, 0, 3, 43.8))
sketch11.addConstraint(Sketcher.Constraint("DistanceY", 0, 3, -1, 1, 32.999532))
pocket7 = body.newObject("PartDesign::Pocket", "Pocket006")
pocket7.Profile = sketch11
pocket7.Type = "ThroughAll"

sketch12 = body.newObject("Sketcher::SketchObject", "Sketch011")
sketch12.Placement = App.Placement(App.Vector(0, 11.643333, -16.628403), App.Rotation(App.Vector(-1, 0, 0), App.Vector(0, 0.819152044, 0.573576436), App.Vector(0, 0.573576436, -0.819152044), "ZXY"))
sketch12.addGeometry(Part.Circle(App.Vector(-43.8, -33.8, 0), App.Vector(0, 0, 1), 3.2), False)
sketch12.addConstraint(Sketcher.Constraint("Diameter", 0, 6.5))
sketch12.addConstraint(Sketcher.Constraint("DistanceX", 0, 3, -1, 1, 43.8))
sketch12.addConstraint(Sketcher.Constraint("DistanceY", 0, 3, -1, 1, 33.782327))
pocket8 = body.newObject("PartDesign::Pocket", "Pocket007")
pocket8.Profile = sketch12
pocket8.Type = "ThroughAll"

sketch13 = body.newObject("Sketcher::SketchObject", "Sketch012")
sketch13.Placement = App.Placement(App.Vector(0, 9.922604, -14.170947), App.Rotation(App.Vector(-1, 0, 0), App.Vector(0, 0.819152044, 0.573576436), App.Vector(0, 0.573576436, -0.819152044), "ZXY"))
sketch13.addGeometry(Part.Circle(App.Vector(-43.8, -33.8, 0), App.Vector(0, 0, 1), 8.5), False)
sketch13.addGeometry(Part.Circle(App.Vector(-43.8, -33.8, 0), App.Vector(0, 0, 1), 3.2), False)
sketch13.addConstraint(Sketcher.Constraint("Coincident", 1, 3, 0, 3))
sketch13.addConstraint(Sketcher.Constraint("Diameter", 0, 17.0))
sketch13.addConstraint(Sketcher.Constraint("Diameter", 1, 6.5))
sketch13.addConstraint(Sketcher.Constraint("DistanceX", 0, 3, -1, 1, 43.8))
sketch13.addConstraint(Sketcher.Constraint("DistanceY", 0, 3, -1, 1, 33.782327))
pocket9 = body.newObject("PartDesign::Pocket", "Pocket008")
pocket9.Profile = sketch13
pocket9.Length = 25.4
doc.recompute()

mirrored = body.newObject("PartDesign::Mirrored", "Mirrored")
mirrored.Originals = [pad4, pocket6, pocket7, pocket8, pocket9]
mirrored.MirrorPlane = (doc.getObject("YZ_Plane"), [""])
body.Tip = mirrored

sketch14 = body.newObject("Sketcher::SketchObject", "Sketch013")
sketch14.AttachmentSupport = (doc.getObject("YZ_Plane"), [""])
sketch14.MapMode = "FlatFace"
sketch14.AttachmentOffset = App.Placement(App.Vector(0, 0, 31.1), App.Rotation())
sketch14.addGeometry(Part.LineSegment(App.Vector(11, -27, 0), App.Vector(-1, -36, 0)), False)
sketch14.addGeometry(Part.LineSegment(App.Vector(-1, -36, 0), App.Vector(-7, -27, 0)), False)
sketch14.addGeometry(Part.LineSegment(App.Vector(-7, -27, 0), App.Vector(11, -27, 0)), False)
sketch14.addConstraint(Sketcher.Constraint("Coincident", 0, 2, 1, 1))
sketch14.addConstraint(Sketcher.Constraint("Coincident", 1, 2, 2, 1))
sketch14.addConstraint(Sketcher.Constraint("Coincident", 2, 2, 0, 1))
sketch14.addConstraint(Sketcher.Constraint("Horizontal", 2))
sketch14.addConstraint(Sketcher.Constraint("Perpendicular", 0, 1))
sketch14.addConstraint(Sketcher.Constraint("Angle", 0, Q("-145 deg")))
sketch14.addConstraint(Sketcher.Constraint("DistanceY", 1, 2, -1, 1, 27.0))
sketch14.addConstraint(Sketcher.Constraint("DistanceX", -1, 1, 2, 2, 11.4))
sketch14.addConstraint(Sketcher.Constraint("DistanceX", 2, 1, 2, 2, 18.231165))
pad5 = body.newObject("PartDesign::Pad", "Pad004")
pad5.Profile = sketch14
pad5.Type = "UpToFirst"
pad5.Reversed = True

doc.recompute()
